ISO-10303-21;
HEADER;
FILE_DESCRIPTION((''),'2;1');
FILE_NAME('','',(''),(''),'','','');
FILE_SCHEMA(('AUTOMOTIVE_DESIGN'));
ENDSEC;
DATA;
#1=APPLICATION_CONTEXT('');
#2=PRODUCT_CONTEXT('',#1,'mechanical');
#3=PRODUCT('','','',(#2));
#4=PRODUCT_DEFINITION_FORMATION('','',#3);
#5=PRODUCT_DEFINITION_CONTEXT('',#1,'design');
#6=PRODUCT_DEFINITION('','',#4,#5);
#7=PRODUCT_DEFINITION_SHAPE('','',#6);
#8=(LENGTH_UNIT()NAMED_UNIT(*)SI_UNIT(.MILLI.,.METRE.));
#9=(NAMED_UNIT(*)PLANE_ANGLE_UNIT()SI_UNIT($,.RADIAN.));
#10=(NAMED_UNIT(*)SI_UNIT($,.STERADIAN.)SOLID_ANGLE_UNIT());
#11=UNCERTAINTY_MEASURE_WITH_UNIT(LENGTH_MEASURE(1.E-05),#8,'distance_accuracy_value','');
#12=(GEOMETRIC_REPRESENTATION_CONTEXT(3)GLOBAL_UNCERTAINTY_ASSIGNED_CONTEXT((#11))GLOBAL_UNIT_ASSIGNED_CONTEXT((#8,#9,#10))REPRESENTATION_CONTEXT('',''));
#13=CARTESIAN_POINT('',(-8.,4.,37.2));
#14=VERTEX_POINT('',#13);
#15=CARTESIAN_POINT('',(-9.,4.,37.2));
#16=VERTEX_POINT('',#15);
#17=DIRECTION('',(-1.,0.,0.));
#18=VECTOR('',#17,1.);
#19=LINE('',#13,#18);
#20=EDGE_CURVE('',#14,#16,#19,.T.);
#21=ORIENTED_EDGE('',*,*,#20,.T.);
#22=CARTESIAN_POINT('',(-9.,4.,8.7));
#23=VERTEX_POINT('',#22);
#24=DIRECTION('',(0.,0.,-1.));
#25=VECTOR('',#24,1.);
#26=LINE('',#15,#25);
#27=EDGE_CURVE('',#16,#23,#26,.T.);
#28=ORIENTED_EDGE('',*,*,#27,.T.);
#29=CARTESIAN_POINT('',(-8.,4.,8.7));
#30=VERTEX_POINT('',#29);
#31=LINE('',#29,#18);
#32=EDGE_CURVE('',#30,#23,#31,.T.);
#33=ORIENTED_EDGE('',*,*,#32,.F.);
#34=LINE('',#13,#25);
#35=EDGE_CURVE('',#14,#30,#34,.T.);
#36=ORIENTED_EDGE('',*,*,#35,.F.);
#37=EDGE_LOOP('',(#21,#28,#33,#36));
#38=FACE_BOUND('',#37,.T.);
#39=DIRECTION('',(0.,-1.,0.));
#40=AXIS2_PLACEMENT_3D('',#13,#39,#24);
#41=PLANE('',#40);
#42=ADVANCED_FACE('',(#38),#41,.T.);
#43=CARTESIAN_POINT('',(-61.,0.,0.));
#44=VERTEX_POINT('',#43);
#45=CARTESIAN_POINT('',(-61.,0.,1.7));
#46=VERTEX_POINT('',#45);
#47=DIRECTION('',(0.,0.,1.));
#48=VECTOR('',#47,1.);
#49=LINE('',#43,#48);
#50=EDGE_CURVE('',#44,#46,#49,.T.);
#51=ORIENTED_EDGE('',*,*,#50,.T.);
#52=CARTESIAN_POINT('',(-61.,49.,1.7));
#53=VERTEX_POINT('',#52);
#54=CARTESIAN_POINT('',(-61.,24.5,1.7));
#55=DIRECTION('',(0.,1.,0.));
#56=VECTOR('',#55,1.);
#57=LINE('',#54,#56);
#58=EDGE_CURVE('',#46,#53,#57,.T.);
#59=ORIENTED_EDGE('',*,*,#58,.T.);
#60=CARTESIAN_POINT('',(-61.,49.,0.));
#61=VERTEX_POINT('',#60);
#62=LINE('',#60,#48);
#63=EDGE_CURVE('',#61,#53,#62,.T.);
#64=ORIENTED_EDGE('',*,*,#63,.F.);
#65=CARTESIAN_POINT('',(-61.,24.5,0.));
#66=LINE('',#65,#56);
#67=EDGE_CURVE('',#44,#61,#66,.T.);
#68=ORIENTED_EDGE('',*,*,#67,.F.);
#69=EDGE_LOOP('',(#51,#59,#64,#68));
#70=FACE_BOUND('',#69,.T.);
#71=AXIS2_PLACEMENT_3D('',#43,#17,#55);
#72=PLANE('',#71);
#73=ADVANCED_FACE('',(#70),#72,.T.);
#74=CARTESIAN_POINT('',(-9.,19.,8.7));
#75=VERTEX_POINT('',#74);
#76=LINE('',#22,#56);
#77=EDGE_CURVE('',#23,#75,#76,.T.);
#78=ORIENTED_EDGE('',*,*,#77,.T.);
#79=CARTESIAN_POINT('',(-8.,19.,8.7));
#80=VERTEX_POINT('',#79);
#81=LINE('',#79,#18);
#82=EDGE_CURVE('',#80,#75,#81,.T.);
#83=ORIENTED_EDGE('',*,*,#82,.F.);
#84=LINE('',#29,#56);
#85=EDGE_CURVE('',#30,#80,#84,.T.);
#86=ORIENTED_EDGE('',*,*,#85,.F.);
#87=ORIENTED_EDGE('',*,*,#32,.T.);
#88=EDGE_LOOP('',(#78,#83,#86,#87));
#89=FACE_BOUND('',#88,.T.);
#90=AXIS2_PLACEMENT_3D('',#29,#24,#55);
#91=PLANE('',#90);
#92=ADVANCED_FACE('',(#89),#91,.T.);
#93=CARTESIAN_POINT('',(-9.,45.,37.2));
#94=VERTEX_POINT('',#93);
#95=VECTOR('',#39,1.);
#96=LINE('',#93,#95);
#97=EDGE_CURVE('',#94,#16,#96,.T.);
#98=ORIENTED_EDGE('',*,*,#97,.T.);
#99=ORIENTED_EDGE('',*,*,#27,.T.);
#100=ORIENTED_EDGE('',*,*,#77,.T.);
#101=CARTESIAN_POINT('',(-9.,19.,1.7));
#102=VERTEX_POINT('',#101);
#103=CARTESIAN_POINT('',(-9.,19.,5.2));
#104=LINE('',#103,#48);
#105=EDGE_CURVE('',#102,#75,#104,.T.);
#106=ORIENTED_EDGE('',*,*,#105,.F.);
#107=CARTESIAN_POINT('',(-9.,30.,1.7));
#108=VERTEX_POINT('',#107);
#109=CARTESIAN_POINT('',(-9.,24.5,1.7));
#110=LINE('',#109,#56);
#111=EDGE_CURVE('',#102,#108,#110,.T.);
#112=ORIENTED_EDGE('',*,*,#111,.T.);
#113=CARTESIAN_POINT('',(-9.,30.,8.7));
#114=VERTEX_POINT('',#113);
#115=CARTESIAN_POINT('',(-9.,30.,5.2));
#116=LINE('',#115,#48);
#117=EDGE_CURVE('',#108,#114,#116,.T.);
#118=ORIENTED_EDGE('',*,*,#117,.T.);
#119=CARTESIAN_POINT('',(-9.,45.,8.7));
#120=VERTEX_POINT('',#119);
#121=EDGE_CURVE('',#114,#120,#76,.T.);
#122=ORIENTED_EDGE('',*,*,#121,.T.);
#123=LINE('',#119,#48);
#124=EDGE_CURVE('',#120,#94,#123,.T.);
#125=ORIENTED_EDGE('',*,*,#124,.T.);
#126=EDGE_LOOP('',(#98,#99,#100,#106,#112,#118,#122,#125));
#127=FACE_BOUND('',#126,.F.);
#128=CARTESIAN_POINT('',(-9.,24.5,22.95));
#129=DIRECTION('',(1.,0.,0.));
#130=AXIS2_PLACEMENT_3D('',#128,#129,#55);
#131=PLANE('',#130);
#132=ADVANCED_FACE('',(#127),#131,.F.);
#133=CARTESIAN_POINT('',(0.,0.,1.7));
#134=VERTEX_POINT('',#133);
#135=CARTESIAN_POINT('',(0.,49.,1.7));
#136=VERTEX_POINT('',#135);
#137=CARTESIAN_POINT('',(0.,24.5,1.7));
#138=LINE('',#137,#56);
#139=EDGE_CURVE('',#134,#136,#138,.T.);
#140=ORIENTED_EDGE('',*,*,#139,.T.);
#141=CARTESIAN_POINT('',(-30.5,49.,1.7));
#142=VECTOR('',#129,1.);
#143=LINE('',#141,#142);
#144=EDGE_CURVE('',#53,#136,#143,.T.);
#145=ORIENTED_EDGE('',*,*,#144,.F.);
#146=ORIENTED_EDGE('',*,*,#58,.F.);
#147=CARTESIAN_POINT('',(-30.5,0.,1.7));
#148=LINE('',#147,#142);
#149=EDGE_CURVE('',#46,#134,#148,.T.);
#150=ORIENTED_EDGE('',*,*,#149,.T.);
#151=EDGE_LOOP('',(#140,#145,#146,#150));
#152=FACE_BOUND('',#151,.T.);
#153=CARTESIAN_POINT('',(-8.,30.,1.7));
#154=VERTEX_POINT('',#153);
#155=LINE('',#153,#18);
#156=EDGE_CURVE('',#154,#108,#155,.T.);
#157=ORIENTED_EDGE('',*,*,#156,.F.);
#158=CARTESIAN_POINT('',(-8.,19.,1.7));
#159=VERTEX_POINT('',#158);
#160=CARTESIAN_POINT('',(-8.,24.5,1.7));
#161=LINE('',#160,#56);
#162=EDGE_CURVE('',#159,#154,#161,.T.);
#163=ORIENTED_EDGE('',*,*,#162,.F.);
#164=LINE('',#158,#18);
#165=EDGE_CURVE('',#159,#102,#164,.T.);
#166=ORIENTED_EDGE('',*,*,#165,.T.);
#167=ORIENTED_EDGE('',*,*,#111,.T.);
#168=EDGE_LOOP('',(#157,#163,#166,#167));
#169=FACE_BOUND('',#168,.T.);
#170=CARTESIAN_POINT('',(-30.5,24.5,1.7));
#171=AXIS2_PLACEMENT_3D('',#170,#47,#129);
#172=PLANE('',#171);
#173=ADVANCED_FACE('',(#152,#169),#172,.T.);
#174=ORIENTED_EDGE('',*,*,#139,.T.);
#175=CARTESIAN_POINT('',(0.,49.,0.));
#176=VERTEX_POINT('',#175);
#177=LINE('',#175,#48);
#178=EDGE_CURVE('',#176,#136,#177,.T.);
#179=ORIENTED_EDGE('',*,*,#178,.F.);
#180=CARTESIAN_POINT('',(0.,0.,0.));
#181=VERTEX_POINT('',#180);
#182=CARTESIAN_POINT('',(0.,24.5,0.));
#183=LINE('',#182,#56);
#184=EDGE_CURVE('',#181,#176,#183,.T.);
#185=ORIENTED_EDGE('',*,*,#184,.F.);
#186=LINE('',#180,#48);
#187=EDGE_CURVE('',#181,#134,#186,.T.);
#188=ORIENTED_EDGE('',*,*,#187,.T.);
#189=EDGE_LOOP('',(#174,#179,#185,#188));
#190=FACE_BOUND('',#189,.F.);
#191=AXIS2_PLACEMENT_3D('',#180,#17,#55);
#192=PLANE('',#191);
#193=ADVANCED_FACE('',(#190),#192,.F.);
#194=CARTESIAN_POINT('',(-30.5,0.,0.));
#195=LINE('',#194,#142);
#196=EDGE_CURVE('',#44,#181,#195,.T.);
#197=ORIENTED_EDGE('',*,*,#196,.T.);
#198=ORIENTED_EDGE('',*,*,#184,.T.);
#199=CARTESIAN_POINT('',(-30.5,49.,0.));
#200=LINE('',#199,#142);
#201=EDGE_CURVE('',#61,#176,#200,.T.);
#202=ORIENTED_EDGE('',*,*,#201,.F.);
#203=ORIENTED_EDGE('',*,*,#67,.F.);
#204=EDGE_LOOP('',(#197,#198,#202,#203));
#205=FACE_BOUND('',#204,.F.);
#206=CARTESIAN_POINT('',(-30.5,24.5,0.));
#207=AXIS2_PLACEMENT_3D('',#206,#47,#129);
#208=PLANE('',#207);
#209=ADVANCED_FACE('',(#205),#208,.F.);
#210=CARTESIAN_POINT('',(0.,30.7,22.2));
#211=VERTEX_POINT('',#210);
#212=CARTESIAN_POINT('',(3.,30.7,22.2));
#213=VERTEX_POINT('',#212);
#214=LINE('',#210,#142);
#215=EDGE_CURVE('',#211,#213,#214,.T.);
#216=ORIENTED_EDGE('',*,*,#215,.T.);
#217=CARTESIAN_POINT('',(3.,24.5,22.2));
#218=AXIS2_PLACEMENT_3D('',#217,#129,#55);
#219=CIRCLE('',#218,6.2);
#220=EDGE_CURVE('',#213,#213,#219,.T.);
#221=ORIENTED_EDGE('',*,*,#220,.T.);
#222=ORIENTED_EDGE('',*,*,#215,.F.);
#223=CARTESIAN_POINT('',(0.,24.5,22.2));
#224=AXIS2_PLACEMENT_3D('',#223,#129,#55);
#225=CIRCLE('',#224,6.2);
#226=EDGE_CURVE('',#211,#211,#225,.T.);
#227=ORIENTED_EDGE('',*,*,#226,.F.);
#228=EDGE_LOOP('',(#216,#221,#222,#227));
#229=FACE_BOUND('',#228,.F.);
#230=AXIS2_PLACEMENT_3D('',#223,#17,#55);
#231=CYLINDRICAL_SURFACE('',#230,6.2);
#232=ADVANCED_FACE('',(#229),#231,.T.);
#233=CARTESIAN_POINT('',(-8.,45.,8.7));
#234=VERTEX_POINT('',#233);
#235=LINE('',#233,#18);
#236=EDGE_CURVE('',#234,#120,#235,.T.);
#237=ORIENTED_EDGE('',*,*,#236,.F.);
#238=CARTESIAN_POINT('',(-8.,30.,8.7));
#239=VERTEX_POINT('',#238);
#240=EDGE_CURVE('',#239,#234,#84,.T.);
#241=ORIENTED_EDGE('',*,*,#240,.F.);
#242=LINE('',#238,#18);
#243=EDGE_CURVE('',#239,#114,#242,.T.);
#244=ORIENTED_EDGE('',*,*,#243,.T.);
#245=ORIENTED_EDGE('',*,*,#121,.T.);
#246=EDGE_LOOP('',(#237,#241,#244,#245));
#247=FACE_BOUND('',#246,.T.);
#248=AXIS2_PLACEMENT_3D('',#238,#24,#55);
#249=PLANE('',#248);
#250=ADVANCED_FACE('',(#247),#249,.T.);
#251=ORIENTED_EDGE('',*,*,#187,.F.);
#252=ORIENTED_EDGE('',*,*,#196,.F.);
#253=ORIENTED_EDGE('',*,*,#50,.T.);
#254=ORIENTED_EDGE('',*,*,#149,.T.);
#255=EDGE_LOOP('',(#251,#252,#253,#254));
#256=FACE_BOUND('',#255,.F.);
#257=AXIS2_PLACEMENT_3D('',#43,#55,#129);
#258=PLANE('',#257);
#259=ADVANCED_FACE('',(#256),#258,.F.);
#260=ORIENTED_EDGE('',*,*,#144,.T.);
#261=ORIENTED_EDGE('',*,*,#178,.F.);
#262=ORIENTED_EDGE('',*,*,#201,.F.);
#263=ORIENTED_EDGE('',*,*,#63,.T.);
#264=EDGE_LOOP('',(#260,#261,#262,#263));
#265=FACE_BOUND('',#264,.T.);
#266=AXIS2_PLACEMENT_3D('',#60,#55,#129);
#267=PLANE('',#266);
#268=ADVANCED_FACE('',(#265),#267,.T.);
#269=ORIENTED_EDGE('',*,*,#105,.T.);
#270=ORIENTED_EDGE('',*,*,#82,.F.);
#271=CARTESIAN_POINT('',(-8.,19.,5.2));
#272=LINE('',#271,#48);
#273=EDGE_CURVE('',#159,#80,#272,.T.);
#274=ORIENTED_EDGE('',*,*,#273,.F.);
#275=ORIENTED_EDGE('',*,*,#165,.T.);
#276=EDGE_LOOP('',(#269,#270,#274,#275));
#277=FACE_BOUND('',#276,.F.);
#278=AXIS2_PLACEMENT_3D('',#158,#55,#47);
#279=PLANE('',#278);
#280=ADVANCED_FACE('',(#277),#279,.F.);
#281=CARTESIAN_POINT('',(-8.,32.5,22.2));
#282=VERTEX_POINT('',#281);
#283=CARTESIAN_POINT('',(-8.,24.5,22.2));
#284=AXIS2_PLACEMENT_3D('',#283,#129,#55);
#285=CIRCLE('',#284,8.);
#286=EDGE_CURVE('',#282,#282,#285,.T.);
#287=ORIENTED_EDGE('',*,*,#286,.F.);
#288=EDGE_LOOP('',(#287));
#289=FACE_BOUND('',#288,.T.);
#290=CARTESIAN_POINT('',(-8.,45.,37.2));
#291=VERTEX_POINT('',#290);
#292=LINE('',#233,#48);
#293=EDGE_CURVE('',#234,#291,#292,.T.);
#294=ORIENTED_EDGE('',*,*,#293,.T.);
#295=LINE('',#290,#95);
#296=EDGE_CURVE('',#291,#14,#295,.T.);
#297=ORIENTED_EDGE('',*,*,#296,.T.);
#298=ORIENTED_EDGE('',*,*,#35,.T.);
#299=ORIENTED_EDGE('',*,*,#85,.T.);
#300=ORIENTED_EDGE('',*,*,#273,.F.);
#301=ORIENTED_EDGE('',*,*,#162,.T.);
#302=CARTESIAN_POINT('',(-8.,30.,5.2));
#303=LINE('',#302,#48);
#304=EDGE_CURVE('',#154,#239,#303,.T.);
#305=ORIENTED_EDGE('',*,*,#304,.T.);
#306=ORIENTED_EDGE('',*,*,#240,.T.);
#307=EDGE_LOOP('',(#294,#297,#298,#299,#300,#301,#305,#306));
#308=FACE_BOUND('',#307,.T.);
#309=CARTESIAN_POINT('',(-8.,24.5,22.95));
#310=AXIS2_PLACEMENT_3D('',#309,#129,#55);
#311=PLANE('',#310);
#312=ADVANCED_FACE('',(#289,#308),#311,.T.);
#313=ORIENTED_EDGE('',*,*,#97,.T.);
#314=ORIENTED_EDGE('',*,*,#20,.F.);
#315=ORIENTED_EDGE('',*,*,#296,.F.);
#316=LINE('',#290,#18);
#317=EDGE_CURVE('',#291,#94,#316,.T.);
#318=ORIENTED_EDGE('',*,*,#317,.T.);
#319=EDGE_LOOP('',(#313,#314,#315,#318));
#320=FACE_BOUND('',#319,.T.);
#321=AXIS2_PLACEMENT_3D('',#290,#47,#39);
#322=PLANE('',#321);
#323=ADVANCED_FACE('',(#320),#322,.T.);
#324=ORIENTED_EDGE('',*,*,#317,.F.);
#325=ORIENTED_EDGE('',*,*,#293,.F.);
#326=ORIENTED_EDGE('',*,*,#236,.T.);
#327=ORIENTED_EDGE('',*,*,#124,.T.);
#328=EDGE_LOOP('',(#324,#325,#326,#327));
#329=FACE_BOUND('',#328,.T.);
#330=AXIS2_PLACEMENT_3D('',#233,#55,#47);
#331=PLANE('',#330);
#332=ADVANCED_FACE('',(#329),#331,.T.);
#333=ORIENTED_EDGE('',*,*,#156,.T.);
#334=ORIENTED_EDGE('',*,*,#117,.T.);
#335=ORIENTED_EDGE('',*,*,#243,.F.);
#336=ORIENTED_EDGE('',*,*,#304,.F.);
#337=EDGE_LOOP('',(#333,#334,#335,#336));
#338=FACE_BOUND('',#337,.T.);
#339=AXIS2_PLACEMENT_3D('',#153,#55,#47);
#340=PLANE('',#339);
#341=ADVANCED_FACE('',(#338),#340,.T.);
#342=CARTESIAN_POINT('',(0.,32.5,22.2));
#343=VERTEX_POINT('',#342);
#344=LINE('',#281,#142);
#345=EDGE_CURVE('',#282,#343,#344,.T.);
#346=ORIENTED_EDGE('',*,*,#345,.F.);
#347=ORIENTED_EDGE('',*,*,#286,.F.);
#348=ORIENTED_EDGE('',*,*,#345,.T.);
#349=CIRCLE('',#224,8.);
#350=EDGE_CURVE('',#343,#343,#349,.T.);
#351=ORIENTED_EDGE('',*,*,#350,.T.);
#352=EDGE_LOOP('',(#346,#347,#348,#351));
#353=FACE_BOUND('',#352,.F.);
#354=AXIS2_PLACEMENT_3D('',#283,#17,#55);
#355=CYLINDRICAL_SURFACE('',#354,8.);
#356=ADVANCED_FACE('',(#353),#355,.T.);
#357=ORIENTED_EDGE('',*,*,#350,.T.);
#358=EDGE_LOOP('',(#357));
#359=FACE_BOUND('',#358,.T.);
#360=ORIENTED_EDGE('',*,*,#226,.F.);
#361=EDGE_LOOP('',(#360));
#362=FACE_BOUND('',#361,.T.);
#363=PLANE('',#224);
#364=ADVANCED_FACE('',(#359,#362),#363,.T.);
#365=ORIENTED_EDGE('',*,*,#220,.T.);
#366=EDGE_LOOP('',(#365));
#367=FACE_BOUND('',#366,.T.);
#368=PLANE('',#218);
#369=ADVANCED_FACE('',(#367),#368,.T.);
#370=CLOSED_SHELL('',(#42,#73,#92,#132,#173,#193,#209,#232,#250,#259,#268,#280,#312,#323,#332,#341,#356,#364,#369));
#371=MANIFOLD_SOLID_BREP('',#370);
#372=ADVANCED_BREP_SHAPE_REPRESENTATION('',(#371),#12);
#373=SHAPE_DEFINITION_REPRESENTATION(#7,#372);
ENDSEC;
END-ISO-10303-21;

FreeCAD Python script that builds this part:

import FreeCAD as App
import Part
import Sketcher

doc = App.newDocument("Part")
body = doc.addObject("PartDesign::Body", "Body")

# Sketch on XY plane
sketch1 = doc.addObject("Sketcher::SketchObject", "Sketch")
body.addObject(sketch1)
sketch1.AttachmentSupport = (doc.XY_Plane, [""])
sketch1.MapMode = "FlatFace"
sketch1.addGeometry(Part.LineSegment(App.Vector(-61, 49, 0), App.Vector(-61, 0, 0)), False)
sketch1.addGeometry(Part.LineSegment(App.Vector(-61, 0, 0), App.Vector(0, 0, 0)), False)
sketch1.addGeometry(Part.LineSegment(App.Vector(0, 0, 0), App.Vector(0, 49, 0)), False)
sketch1.addGeometry(Part.LineSegment(App.Vector(0, 49, 0), App.Vector(-61, 49, 0)), False)
sketch1.addConstraint(Sketcher.Constraint("Coincident", 0, 2, 1, 1))
sketch1.addConstraint(Sketcher.Constraint("Coincident", 1, 2, 2, 1))
sketch1.addConstraint(Sketcher.Constraint("Coincident", 2, 2, 3, 1))
sketch1.addConstraint(Sketcher.Constraint("Coincident", 3, 2, 0, 1))
sketch1.addConstraint(Sketcher.Constraint("Vertical", 0))
sketch1.addConstraint(Sketcher.Constraint("Horizontal", 1))
sketch1.addConstraint(Sketcher.Constraint("Vertical", 2))
sketch1.addConstraint(Sketcher.Constraint("Horizontal", 3))
sketch1.addConstraint(Sketcher.Constraint("Coincident", 1, 2, -1, 1))
sketch1.addConstraint(Sketcher.Constraint("DistanceX", 1, 1, 1, 2, 61.0))
sketch1.addConstraint(Sketcher.Constraint("DistanceY", 0, 2, 0, 1, 49.0))
pad1 = doc.addObject("PartDesign::Pad", "Pad")
body.addObject(pad1)
pad1.Profile = sketch1
pad1.Length = 1.7

# Sketch on YZ plane
sketch2 = doc.addObject("Sketcher::SketchObject", "Sketch001")
body.addObject(sketch2)
sketch2.AttachmentSupport = (doc.YZ_Plane, [""])
sketch2.MapMode = "FlatFace"
sketch2.AttachmentOffset = App.Placement(App.Vector(0, 0, -8), App.Rotation())
sketch2.addGeometry(Part.LineSegment(App.Vector(4, 9, 0), App.Vector(19, 9, 0)), False)
sketch2.addGeometry(Part.LineSegment(App.Vector(19, 9, 0), App.Vector(19, 2, 0)), False)
sketch2.addGeometry(Part.LineSegment(App.Vector(19, 2, 0), App.Vector(30, 2, 0)), False)
sketch2.addGeometry(Part.LineSegment(App.Vector(30, 2, 0), App.Vector(30, 9, 0)), False)
sketch2.addGeometry(Part.LineSegment(App.Vector(30, 9, 0), App.Vector(45, 9, 0)), False)
sketch2.addGeometry(Part.LineSegment(App.Vector(45, 9, 0), App.Vector(45, 37, 0)), False)
sketch2.addGeometry(Part.LineSegment(App.Vector(45, 37, 0), App.Vector(4, 37, 0)), False)
sketch2.addGeometry(Part.LineSegment(App.Vector(4, 37, 0), App.Vector(4, 9, 0)), False)
sketch2.addConstraint(Sketcher.Constraint("Coincident", 0, 2, 1, 1))
sketch2.addConstraint(Sketcher.Constraint("Coincident", 1, 2, 2, 1))
sketch2.addConstraint(Sketcher.Constraint("Coincident", 2, 2, 3, 1))
sketch2.addConstraint(Sketcher.Constraint("Coincident", 3, 2, 4, 1))
sketch2.addConstraint(Sketcher.Constraint("Coincident", 4, 2, 5, 1))
sketch2.addConstraint(Sketcher.Constraint("Coincident", 5, 2, 6, 1))
sketch2.addConstraint(Sketcher.Constraint("Coincident", 6, 2, 7, 1))
sketch2.addConstraint(Sketcher.Constraint("Coincident", 7, 2, 0, 1))
sketch2.addConstraint(Sketcher.Constraint("Horizontal", 0))
sketch2.addConstraint(Sketcher.Constraint("Vertical", 1))
sketch2.addConstraint(Sketcher.Constraint("Horizontal", 2))
sketch2.addConstraint(Sketcher.Constraint("Vertical", 3))
sketch2.addConstraint(Sketcher.Constraint("Horizontal", 4))
sketch2.addConstraint(Sketcher.Constraint("Vertical", 5))
sketch2.addConstraint(Sketcher.Constraint("Horizontal", 6))
sketch2.addConstraint(Sketcher.Constraint("Vertical", 7))
sketch2.addConstraint(Sketcher.Constraint("Horizontal", 0, 2, 3, 2))
sketch2.addConstraint(Sketcher.Constraint("Equal", 0, 4))
sketch2.addConstraint(Sketcher.Constraint("DistanceX", 0, 1, 0, 2, 15.0))
sketch2.addConstraint(Sketcher.Constraint("DistanceX", 2, 1, 2, 2, 11.0))
sketch2.addConstraint(Sketcher.Constraint("DistanceY", 1, 2, 1, 1, 7.0))
sketch2.addConstraint(Sketcher.Constraint("DistanceY", 5, 1, 5, 2, 28.5))
sketch2.addConstraint(Sketcher.Constraint("DistanceX", -1, 1, 0, 2, 19.0))
sketch2.addConstraint(Sketcher.Constraint("DistanceY", -1, 1, 0, 2, 8.7))
pad2 = doc.addObject("PartDesign::Pad", "Pad001")
body.addObject(pad2)
pad2.Profile = sketch2
pad2.Length = 1
pad2.Reversed = True

# Sketch on YZ plane
sketch3 = doc.addObject("Sketcher::SketchObject", "Sketch002")
body.addObject(sketch3)
sketch3.AttachmentSupport = (doc.YZ_Plane, [""])
sketch3.MapMode = "FlatFace"
sketch3.AttachmentOffset = App.Placement(App.Vector(0, 0, -8), App.Rotation())
sketch3.addGeometry(Part.Circle(App.Vector(24, 22, 0), App.Vector(0, 0, 1), 8), False)
sketch3.addConstraint(Sketcher.Constraint("Diameter", 0, 16.0))
sketch3.addConstraint(Sketcher.Constraint("DistanceX", -1, 1, 0, 3, 24.5))
sketch3.addConstraint(Sketcher.Constraint("DistanceY", -1, 1, 0, 3, 22.2))
pad3 = doc.addObject("PartDesign::Pad", "Pad002")
body.addObject(pad3)
pad3.Profile = sketch3
pad3.Length = 8

# Sketch on YZ plane
sketch4 = doc.addObject("Sketcher::SketchObject", "Sketch003")
body.addObject(sketch4)
sketch4.AttachmentSupport = (doc.YZ_Plane, [""])
sketch4.MapMode = "FlatFace"
sketch4.addGeometry(Part.Circle(App.Vector(24, 22, 0), App.Vector(0, 0, 1), 6), False)
sketch4.addConstraint(Sketcher.Constraint("Diameter", 0, 12.4))
sketch4.addConstraint(Sketcher.Constraint("DistanceX", -1, 1, 0, 3, 24.5))
sketch4.addConstraint(Sketcher.Constraint("DistanceY", -1, 1, 0, 3, 22.2))
pad4 = doc.addObject("PartDesign::Pad", "Pad003")
body.addObject(pad4)
pad4.Profile = sketch4
pad4.Length = 3

doc.recompute()
